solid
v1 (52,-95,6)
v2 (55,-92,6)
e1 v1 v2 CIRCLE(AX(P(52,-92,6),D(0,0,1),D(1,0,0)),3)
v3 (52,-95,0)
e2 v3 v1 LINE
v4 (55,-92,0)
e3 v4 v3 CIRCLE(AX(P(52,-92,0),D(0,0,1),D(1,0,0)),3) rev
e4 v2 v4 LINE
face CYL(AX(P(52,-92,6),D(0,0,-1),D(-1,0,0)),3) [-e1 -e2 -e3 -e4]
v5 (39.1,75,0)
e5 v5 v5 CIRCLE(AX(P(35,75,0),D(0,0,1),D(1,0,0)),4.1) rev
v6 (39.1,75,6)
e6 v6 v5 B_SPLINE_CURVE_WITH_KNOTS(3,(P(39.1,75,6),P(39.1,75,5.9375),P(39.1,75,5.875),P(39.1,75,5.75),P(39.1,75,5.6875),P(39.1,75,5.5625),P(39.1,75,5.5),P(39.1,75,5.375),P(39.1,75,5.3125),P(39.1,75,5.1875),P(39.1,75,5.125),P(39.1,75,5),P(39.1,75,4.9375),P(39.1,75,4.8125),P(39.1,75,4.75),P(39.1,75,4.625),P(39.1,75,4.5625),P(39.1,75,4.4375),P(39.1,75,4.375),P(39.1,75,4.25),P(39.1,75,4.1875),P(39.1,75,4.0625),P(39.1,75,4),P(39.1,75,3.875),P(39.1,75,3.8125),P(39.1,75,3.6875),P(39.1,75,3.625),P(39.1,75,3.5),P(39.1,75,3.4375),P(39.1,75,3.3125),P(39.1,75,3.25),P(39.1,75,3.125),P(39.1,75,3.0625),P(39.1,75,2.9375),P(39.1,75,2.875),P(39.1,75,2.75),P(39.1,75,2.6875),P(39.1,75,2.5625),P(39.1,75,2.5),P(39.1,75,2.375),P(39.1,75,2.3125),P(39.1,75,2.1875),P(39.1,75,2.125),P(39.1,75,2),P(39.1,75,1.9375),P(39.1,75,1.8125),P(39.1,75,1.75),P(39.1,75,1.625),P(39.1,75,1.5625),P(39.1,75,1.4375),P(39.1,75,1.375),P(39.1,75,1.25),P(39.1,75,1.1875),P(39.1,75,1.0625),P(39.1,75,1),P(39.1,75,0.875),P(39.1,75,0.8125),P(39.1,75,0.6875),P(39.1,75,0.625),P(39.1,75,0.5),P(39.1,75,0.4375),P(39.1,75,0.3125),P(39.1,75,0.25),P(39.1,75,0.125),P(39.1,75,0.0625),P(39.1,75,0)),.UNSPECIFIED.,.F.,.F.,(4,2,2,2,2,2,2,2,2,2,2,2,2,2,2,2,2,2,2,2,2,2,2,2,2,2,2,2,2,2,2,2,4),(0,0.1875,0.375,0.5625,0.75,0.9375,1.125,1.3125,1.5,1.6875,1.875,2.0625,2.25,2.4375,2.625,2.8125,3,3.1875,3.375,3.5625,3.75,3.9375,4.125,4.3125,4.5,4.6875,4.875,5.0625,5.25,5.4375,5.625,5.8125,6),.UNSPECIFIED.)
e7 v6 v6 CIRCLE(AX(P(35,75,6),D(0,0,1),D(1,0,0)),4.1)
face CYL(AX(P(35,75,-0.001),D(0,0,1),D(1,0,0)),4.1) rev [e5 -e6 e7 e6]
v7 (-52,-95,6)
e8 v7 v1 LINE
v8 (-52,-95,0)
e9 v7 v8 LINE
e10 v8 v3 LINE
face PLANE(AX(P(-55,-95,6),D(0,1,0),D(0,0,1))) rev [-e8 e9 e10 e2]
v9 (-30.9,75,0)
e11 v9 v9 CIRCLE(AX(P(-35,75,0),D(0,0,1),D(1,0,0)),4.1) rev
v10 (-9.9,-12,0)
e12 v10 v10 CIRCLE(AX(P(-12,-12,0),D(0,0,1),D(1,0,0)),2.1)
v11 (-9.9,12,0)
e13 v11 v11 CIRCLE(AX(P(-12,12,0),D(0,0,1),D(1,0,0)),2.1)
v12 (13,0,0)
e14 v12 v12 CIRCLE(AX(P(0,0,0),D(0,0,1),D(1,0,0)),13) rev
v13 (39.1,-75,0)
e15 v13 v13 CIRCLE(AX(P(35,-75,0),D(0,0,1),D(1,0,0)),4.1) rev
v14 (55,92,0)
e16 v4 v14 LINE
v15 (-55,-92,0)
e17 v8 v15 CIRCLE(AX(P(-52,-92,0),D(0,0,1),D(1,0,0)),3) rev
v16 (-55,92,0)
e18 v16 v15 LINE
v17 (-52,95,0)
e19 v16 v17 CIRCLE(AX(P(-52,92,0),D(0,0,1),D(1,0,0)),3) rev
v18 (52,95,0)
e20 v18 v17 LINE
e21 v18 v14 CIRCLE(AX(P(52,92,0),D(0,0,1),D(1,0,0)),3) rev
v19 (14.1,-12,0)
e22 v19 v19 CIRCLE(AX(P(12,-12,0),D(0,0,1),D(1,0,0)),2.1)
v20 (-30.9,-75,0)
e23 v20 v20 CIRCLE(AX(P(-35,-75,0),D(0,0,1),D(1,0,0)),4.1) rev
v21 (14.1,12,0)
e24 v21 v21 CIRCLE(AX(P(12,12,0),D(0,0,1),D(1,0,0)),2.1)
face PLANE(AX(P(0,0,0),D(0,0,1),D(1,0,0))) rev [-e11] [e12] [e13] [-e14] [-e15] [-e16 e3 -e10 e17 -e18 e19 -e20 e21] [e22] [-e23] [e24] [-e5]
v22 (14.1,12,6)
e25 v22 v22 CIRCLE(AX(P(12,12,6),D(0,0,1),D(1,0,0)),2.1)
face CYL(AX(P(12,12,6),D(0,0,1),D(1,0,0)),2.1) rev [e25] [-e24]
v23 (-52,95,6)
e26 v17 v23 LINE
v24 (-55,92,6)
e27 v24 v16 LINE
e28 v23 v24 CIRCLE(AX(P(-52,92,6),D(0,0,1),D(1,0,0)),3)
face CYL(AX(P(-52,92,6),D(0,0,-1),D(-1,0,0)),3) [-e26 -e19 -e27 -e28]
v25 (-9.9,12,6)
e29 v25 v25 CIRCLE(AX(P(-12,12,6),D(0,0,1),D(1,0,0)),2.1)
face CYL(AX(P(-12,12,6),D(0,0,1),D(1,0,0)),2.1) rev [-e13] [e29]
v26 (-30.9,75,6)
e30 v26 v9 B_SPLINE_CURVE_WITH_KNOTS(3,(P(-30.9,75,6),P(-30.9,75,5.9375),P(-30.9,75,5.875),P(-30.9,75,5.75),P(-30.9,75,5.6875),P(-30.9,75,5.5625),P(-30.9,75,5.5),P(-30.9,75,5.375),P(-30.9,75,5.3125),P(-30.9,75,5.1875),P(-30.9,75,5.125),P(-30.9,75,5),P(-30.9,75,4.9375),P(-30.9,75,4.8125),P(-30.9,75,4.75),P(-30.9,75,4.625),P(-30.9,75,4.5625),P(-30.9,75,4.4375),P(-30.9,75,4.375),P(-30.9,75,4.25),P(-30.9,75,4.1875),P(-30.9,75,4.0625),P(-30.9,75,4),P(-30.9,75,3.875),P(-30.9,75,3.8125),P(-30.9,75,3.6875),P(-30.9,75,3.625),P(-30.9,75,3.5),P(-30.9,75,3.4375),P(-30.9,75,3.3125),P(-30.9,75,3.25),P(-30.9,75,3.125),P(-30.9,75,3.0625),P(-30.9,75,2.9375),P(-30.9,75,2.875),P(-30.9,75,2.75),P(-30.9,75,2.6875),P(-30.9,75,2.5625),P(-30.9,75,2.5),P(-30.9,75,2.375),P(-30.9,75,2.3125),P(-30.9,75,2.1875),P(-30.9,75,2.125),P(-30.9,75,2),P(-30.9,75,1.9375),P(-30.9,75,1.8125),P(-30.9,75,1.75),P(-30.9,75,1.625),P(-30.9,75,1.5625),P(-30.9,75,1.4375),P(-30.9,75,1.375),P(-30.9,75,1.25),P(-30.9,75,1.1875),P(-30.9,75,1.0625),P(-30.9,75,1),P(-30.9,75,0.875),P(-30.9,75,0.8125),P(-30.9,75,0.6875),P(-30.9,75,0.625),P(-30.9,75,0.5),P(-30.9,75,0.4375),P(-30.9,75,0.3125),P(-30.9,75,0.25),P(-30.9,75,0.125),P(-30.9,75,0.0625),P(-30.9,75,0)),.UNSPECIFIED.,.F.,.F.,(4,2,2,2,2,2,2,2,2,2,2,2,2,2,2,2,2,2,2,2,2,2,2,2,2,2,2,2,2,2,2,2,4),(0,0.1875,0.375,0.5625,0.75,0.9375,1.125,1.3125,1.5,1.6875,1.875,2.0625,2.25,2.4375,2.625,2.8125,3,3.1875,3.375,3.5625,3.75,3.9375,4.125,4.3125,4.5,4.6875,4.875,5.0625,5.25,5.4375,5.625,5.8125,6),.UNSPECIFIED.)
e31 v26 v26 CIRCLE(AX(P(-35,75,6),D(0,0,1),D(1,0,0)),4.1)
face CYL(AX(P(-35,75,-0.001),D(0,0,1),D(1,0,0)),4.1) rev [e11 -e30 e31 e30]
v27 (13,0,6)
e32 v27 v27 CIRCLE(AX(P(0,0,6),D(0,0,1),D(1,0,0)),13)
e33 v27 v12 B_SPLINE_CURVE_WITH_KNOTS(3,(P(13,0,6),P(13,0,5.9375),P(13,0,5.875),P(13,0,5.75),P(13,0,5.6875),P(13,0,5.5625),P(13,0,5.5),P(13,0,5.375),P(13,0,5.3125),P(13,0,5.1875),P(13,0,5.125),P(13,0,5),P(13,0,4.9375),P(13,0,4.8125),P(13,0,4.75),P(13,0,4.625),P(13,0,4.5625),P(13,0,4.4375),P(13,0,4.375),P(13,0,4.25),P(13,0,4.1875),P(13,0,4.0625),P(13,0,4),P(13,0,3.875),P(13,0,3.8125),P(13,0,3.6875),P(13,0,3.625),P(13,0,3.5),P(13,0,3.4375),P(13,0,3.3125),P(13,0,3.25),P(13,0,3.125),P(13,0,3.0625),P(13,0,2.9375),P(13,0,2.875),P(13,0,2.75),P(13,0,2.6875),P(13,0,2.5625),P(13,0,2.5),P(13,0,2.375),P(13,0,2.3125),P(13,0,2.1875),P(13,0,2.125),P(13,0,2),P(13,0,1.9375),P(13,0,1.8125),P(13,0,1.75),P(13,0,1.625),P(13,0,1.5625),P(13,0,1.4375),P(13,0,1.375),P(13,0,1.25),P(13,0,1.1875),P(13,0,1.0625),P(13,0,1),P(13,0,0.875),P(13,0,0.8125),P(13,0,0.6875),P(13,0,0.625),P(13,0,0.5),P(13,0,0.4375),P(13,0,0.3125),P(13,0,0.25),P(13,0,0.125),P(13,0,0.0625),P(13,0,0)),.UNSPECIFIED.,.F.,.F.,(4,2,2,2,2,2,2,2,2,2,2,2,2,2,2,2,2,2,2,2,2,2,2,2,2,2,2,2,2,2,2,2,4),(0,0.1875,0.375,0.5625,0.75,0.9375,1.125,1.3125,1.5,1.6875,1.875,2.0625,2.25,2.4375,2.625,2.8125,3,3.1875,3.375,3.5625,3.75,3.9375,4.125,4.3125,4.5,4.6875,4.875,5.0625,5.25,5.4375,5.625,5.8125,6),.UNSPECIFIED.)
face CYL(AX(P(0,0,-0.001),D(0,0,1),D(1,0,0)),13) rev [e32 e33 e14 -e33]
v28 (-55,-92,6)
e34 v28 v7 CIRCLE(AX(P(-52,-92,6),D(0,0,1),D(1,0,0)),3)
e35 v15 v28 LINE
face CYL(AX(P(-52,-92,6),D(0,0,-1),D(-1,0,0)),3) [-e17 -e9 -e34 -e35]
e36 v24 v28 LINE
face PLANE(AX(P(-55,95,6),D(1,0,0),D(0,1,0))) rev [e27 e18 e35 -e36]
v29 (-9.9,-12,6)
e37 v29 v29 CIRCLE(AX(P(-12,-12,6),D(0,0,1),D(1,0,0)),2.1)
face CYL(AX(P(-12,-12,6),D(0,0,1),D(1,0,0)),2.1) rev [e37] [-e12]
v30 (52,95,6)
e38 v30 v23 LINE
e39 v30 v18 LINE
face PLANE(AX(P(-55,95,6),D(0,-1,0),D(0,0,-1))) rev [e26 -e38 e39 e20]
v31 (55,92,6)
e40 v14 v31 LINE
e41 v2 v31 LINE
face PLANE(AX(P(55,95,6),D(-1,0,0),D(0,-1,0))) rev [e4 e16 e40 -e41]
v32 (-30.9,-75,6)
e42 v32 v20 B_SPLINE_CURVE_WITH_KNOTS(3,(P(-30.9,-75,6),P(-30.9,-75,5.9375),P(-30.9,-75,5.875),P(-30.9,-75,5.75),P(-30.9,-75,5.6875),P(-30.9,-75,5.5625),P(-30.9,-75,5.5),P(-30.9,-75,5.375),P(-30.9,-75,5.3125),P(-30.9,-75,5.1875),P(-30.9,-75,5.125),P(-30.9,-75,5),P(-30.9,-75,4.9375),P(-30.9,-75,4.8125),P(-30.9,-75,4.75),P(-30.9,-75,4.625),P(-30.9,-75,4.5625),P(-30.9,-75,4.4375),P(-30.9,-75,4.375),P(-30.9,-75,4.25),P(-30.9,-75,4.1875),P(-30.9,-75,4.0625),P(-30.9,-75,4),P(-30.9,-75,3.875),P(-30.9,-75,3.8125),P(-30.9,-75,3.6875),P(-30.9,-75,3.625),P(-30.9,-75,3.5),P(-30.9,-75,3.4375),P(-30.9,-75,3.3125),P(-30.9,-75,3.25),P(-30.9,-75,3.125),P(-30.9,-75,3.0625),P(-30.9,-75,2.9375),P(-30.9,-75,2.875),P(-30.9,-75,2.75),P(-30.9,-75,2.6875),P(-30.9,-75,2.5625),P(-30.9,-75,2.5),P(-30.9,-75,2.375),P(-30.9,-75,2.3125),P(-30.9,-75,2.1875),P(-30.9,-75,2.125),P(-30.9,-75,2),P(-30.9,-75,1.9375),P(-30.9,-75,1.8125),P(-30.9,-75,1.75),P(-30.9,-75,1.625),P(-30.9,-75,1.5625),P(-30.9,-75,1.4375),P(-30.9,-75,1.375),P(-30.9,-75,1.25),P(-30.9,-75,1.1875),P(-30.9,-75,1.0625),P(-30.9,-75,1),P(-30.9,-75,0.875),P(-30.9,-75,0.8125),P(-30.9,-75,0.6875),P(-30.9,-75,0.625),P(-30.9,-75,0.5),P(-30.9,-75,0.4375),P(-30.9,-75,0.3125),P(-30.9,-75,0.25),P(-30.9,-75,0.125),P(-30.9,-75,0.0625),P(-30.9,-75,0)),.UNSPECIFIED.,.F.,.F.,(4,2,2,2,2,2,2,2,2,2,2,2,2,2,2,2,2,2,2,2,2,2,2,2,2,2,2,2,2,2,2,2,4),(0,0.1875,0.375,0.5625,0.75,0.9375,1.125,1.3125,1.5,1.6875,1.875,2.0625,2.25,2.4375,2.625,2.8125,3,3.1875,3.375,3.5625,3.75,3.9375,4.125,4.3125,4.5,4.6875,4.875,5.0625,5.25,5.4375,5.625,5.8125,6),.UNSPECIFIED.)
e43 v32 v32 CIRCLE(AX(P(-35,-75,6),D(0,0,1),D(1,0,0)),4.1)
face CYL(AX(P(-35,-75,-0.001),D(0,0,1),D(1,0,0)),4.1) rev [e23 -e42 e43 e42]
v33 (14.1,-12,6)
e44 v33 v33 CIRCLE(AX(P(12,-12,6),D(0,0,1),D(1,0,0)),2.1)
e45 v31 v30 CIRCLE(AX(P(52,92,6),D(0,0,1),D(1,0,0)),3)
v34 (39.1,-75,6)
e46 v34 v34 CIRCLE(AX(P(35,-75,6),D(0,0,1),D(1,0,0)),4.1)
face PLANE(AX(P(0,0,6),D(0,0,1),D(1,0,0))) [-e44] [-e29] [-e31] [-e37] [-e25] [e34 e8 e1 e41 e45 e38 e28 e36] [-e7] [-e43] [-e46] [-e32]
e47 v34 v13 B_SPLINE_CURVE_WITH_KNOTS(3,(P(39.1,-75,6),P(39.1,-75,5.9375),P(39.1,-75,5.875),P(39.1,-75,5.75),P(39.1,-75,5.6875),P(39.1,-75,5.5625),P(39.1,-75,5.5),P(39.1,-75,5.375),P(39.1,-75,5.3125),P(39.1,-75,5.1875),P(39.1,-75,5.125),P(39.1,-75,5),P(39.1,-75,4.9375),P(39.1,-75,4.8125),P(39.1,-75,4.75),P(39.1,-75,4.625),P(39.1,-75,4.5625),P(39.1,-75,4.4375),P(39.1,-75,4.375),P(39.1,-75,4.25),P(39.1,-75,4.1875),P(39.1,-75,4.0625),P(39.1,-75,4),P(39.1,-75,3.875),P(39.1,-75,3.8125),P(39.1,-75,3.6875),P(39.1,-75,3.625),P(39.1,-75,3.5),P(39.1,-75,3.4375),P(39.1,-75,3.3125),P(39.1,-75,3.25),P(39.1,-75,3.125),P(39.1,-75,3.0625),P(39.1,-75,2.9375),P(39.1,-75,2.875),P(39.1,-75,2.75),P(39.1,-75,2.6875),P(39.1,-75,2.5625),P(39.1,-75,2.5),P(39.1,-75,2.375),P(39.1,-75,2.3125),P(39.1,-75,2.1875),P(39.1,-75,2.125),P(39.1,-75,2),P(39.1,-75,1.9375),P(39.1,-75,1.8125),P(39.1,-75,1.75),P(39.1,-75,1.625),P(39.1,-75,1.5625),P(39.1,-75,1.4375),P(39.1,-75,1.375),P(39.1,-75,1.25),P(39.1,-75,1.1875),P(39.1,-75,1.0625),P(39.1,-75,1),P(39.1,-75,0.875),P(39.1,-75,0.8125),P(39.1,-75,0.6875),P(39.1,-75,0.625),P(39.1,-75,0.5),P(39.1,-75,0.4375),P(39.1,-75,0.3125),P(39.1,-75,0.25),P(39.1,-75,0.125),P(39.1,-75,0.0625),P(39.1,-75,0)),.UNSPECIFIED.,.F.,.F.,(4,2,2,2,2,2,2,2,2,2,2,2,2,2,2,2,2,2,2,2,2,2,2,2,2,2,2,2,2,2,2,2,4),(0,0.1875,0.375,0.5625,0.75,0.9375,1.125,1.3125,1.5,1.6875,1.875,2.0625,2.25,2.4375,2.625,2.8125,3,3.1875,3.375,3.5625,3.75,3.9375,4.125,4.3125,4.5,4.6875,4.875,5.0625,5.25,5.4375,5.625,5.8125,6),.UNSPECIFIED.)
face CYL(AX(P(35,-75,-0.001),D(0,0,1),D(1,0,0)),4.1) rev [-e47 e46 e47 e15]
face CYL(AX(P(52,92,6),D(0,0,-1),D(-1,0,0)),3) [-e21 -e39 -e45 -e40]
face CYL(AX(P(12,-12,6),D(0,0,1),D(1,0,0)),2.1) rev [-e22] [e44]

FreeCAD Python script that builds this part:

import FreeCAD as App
import Part
import Sketcher
from FreeCAD import Vector


def edges_at(feature, points):
    """Names of the edges that pass closest to the given points."""
    edges = feature.Shape.Edges
    near = lambda p: min(range(len(edges)), key=lambda i: edges[i].distToShape(Part.Vertex(*p))[0])
    return sorted({f"Edge{near(p) + 1}" for p in points})

doc = App.newDocument("Part")
params = doc.addObject("Spreadsheet::Sheet", "Params")
for row, (alias, value) in enumerate([
    ("sketch1_width", "110 mm"),
    ("sketch1_height", "190 mm"),
    ("pad1_length", "6 mm"),
    ("sketch2_diameter", "26 mm"),
    ("sketch3_diameter", "8.2 mm"),
    ("sketch4_diameter", "8.2 mm"),
    ("sketch5_diameter", "8.2 mm"),
    ("sketch6_diameter", "8.2 mm"),
    ("fillet_radius", "3 mm"),
    ("sketch7_diameter", "4.2 mm"),
    ("hole_diameter", "4.2 mm"),
    ("hole_depth", "19.75 mm"),
], start=1):
    params.set(f"A{row}", alias)
    params.set(f"B{row}", "=" + value)
    params.setAlias(f"B{row}", alias)

body = doc.addObject("PartDesign::Body", "Body")

# Sketch on XY plane
sketch1 = body.newObject("Sketcher::SketchObject", "Sketch")
sketch1.AttachmentSupport = (doc.getObject("XY_Plane"), [""])
sketch1.MapMode = "FlatFace"
sketch1.addGeometry(Part.LineSegment(Vector(-55, 95, 0), Vector(-55, -95, 0)), False)
sketch1.addGeometry(Part.LineSegment(Vector(-55, -95, 0), Vector(55, -95, 0)), False)
sketch1.addGeometry(Part.LineSegment(Vector(55, -95, 0), Vector(55, 95, 0)), False)
sketch1.addGeometry(Part.LineSegment(Vector(55, 95, 0), Vector(-55, 95, 0)), False)
sketch1.addConstraint(Sketcher.Constraint("Coincident", 0, 2, 1, 1))
sketch1.addConstraint(Sketcher.Constraint("Coincident", 1, 2, 2, 1))
sketch1.addConstraint(Sketcher.Constraint("Coincident", 2, 2, 3, 1))
sketch1.addConstraint(Sketcher.Constraint("Coincident", 3, 2, 0, 1))
sketch1.addConstraint(Sketcher.Constraint("Vertical", 0))
sketch1.addConstraint(Sketcher.Constraint("Horizontal", 1))
sketch1.addConstraint(Sketcher.Constraint("Vertical", 2))
sketch1.addConstraint(Sketcher.Constraint("Horizontal", 3))
sketch1.addConstraint(Sketcher.Constraint("Symmetric", 0, 2, 2, 2, -1, 1))
sketch1.addConstraint(Sketcher.Constraint("DistanceX", 1, 1, 1, 2, 110.0))
sketch1.addConstraint(Sketcher.Constraint("DistanceY", 0, 2, 0, 1, 190.0))
sketch1.setExpression("Constraints[9]", "Params.sketch1_width")
sketch1.setExpression("Constraints[10]", "Params.sketch1_height")
pad1 = body.newObject("PartDesign::Pad", "Pad")
pad1.Profile = sketch1
pad1.setExpression("Length", "Params.pad1_length")

# Sketch on XY plane
sketch2 = body.newObject("Sketcher::SketchObject", "Sketch001")
sketch2.AttachmentSupport = (doc.getObject("XY_Plane"), [""])
sketch2.MapMode = "FlatFace"
sketch2.AttachmentOffset = App.Placement(Vector(0, 0, 6), App.Rotation())
sketch2.addGeometry(Part.Circle(Vector(0, 0, 0), Vector(0, 0, 1), 13), False)
sketch2.addConstraint(Sketcher.Constraint("Coincident", 0, 3, -1, 1))
sketch2.addConstraint(Sketcher.Constraint("Diameter", 0, 26.0))
sketch2.setExpression("Constraints[1]", "Params.sketch2_diameter")
pocket1 = body.newObject("PartDesign::Pocket", "Pocket")
pocket1.Profile = sketch2
pocket1.Type = "UpToFirst"

# Sketch on XY plane
sketch3 = body.newObject("Sketcher::SketchObject", "Sketch002")
sketch3.AttachmentSupport = (doc.getObject("XY_Plane"), [""])
sketch3.MapMode = "FlatFace"
sketch3.AttachmentOffset = App.Placement(Vector(0, 0, 6), App.Rotation())
sketch3.addGeometry(Part.Circle(Vector(-35, 75, 0), Vector(0, 0, 1), 4.1), False)
sketch3.addConstraint(Sketcher.Constraint("Diameter", 0, 8.2))
sketch3.addConstraint(Sketcher.Constraint("DistanceX", 0, 3, -1, 1, 35.0))
sketch3.addConstraint(Sketcher.Constraint("DistanceY", -1, 1, 0, 3, 75.0))
sketch3.setExpression("Constraints[0]", "Params.sketch3_diameter")
pocket2 = body.newObject("PartDesign::Pocket", "Pocket001")
pocket2.Profile = sketch3
pocket2.Type = "UpToFirst"

# Sketch on XY plane
sketch4 = body.newObject("Sketcher::SketchObject", "Sketch003")
sketch4.AttachmentSupport = (doc.getObject("XY_Plane"), [""])
sketch4.MapMode = "FlatFace"
sketch4.AttachmentOffset = App.Placement(Vector(0, 0, 6), App.Rotation())
sketch4.addGeometry(Part.Circle(Vector(35, 75, 0), Vector(0, 0, 1), 4.1), False)
sketch4.addConstraint(Sketcher.Constraint("Diameter", 0, 8.2))
sketch4.addConstraint(Sketcher.Constraint("DistanceX", -1, 1, 0, 3, 35.0))
sketch4.addConstraint(Sketcher.Constraint("DistanceY", -1, 1, 0, 3, 75.0))
sketch4.setExpression("Constraints[0]", "Params.sketch4_diameter")
pocket3 = body.newObject("PartDesign::Pocket", "Pocket002")
pocket3.Profile = sketch4
pocket3.Type = "UpToFirst"

# Sketch on XY plane
sketch5 = body.newObject("Sketcher::SketchObject", "Sketch004")
sketch5.AttachmentSupport = (doc.getObject("XY_Plane"), [""])
sketch5.MapMode = "FlatFace"
sketch5.AttachmentOffset = App.Placement(Vector(0, 0, 6), App.Rotation())
sketch5.addGeometry(Part.Circle(Vector(35, -75, 0), Vector(0, 0, 1), 4.1), False)
sketch5.addConstraint(Sketcher.Constraint("Diameter", 0, 8.2))
sketch5.addConstraint(Sketcher.Constraint("DistanceX", -1, 1, 0, 3, 35.0))
sketch5.addConstraint(Sketcher.Constraint("DistanceY", 0, 3, -1, 1, 75.0))
sketch5.setExpression("Constraints[0]", "Params.sketch5_diameter")
pocket4 = body.newObject("PartDesign::Pocket", "Pocket003")
pocket4.Profile = sketch5
pocket4.Type = "UpToFirst"

# Sketch on XY plane
sketch6 = body.newObject("Sketcher::SketchObject", "Sketch005")
sketch6.AttachmentSupport = (doc.getObject("XY_Plane"), [""])
sketch6.MapMode = "FlatFace"
sketch6.AttachmentOffset = App.Placement(Vector(0, 0, 6), App.Rotation())
sketch6.addGeometry(Part.Circle(Vector(-35, -75, 0), Vector(0, 0, 1), 4.1), False)
sketch6.addConstraint(Sketcher.Constraint("Diameter", 0, 8.2))
sketch6.addConstraint(Sketcher.Constraint("DistanceX", 0, 3, -1, 1, 35.0))
sketch6.addConstraint(Sketcher.Constraint("DistanceY", 0, 3, -1, 1, 75.0))
sketch6.setExpression("Constraints[0]", "Params.sketch6_diameter")
pocket5 = body.newObject("PartDesign::Pocket", "Pocket004")
pocket5.Profile = sketch6
pocket5.Type = "UpToFirst"
doc.recompute()

fillet = body.newObject("PartDesign::Fillet", "Fillet")
fillet.Base = (pocket5, edges_at(pocket5, [
    (55, -95, 3),
    (-55, -95, 3),
    (-55, 95, 3),
    (55, 95, 3),
]))
fillet.setExpression("Radius", "Params.fillet_radius")

# Sketch on XY plane
sketch7 = body.newObject("Sketcher::SketchObject", "Sketch006")
sketch7.AttachmentSupport = (doc.getObject("XY_Plane"), [""])
sketch7.MapMode = "FlatFace"
sketch7.AttachmentOffset = App.Placement(Vector(0, 0, 6), App.Rotation())
sketch7.addGeometry(Part.Circle(Vector(-12, 12, 0), Vector(0, 0, 1), 2.1), False)
sketch7.addGeometry(Part.Circle(Vector(12, 12, 0), Vector(0, 0, 1), 2.1), False)
sketch7.addGeometry(Part.Circle(Vector(12, -12, 0), Vector(0, 0, 1), 2.1), False)
sketch7.addGeometry(Part.Circle(Vector(-12, -12, 0), Vector(0, 0, 1), 2.1), False)
sketch7.addConstraint(Sketcher.Constraint("Equal", 0, 1))
sketch7.addConstraint(Sketcher.Constraint("Equal", 1, 2))
sketch7.addConstraint(Sketcher.Constraint("Equal", 2, 3))
sketch7.addConstraint(Sketcher.Constraint("Symmetric", 0, 3, 2, 3, -1, 1))
sketch7.addConstraint(Sketcher.Constraint("Symmetric", 1, 3, 3, 3, -1, 1))
sketch7.addConstraint(Sketcher.Constraint("Symmetric", 0, 3, 1, 3, -2))
sketch7.addConstraint(Sketcher.Constraint("Diameter", 0, 4.2))
sketch7.addConstraint(Sketcher.Constraint("DistanceX", 0, 3, -1, 1, 12.0))
sketch7.addConstraint(Sketcher.Constraint("DistanceY", -1, 1, 0, 3, 12.0))
sketch7.setExpression("Constraints[6]", "Params.sketch7_diameter")
doc.recompute()
hole = body.newObject("PartDesign::Hole", "Hole")
hole.Profile = sketch7
hole.ThreadType = "None"
hole.setExpression("Diameter", "Params.hole_diameter")
hole.DepthType = "Dimension"
hole.setExpression("Depth", "Params.hole_depth")
hole.DrillPoint = "Angled"
hole.DrillPointAngle = 118

doc.recompute()
